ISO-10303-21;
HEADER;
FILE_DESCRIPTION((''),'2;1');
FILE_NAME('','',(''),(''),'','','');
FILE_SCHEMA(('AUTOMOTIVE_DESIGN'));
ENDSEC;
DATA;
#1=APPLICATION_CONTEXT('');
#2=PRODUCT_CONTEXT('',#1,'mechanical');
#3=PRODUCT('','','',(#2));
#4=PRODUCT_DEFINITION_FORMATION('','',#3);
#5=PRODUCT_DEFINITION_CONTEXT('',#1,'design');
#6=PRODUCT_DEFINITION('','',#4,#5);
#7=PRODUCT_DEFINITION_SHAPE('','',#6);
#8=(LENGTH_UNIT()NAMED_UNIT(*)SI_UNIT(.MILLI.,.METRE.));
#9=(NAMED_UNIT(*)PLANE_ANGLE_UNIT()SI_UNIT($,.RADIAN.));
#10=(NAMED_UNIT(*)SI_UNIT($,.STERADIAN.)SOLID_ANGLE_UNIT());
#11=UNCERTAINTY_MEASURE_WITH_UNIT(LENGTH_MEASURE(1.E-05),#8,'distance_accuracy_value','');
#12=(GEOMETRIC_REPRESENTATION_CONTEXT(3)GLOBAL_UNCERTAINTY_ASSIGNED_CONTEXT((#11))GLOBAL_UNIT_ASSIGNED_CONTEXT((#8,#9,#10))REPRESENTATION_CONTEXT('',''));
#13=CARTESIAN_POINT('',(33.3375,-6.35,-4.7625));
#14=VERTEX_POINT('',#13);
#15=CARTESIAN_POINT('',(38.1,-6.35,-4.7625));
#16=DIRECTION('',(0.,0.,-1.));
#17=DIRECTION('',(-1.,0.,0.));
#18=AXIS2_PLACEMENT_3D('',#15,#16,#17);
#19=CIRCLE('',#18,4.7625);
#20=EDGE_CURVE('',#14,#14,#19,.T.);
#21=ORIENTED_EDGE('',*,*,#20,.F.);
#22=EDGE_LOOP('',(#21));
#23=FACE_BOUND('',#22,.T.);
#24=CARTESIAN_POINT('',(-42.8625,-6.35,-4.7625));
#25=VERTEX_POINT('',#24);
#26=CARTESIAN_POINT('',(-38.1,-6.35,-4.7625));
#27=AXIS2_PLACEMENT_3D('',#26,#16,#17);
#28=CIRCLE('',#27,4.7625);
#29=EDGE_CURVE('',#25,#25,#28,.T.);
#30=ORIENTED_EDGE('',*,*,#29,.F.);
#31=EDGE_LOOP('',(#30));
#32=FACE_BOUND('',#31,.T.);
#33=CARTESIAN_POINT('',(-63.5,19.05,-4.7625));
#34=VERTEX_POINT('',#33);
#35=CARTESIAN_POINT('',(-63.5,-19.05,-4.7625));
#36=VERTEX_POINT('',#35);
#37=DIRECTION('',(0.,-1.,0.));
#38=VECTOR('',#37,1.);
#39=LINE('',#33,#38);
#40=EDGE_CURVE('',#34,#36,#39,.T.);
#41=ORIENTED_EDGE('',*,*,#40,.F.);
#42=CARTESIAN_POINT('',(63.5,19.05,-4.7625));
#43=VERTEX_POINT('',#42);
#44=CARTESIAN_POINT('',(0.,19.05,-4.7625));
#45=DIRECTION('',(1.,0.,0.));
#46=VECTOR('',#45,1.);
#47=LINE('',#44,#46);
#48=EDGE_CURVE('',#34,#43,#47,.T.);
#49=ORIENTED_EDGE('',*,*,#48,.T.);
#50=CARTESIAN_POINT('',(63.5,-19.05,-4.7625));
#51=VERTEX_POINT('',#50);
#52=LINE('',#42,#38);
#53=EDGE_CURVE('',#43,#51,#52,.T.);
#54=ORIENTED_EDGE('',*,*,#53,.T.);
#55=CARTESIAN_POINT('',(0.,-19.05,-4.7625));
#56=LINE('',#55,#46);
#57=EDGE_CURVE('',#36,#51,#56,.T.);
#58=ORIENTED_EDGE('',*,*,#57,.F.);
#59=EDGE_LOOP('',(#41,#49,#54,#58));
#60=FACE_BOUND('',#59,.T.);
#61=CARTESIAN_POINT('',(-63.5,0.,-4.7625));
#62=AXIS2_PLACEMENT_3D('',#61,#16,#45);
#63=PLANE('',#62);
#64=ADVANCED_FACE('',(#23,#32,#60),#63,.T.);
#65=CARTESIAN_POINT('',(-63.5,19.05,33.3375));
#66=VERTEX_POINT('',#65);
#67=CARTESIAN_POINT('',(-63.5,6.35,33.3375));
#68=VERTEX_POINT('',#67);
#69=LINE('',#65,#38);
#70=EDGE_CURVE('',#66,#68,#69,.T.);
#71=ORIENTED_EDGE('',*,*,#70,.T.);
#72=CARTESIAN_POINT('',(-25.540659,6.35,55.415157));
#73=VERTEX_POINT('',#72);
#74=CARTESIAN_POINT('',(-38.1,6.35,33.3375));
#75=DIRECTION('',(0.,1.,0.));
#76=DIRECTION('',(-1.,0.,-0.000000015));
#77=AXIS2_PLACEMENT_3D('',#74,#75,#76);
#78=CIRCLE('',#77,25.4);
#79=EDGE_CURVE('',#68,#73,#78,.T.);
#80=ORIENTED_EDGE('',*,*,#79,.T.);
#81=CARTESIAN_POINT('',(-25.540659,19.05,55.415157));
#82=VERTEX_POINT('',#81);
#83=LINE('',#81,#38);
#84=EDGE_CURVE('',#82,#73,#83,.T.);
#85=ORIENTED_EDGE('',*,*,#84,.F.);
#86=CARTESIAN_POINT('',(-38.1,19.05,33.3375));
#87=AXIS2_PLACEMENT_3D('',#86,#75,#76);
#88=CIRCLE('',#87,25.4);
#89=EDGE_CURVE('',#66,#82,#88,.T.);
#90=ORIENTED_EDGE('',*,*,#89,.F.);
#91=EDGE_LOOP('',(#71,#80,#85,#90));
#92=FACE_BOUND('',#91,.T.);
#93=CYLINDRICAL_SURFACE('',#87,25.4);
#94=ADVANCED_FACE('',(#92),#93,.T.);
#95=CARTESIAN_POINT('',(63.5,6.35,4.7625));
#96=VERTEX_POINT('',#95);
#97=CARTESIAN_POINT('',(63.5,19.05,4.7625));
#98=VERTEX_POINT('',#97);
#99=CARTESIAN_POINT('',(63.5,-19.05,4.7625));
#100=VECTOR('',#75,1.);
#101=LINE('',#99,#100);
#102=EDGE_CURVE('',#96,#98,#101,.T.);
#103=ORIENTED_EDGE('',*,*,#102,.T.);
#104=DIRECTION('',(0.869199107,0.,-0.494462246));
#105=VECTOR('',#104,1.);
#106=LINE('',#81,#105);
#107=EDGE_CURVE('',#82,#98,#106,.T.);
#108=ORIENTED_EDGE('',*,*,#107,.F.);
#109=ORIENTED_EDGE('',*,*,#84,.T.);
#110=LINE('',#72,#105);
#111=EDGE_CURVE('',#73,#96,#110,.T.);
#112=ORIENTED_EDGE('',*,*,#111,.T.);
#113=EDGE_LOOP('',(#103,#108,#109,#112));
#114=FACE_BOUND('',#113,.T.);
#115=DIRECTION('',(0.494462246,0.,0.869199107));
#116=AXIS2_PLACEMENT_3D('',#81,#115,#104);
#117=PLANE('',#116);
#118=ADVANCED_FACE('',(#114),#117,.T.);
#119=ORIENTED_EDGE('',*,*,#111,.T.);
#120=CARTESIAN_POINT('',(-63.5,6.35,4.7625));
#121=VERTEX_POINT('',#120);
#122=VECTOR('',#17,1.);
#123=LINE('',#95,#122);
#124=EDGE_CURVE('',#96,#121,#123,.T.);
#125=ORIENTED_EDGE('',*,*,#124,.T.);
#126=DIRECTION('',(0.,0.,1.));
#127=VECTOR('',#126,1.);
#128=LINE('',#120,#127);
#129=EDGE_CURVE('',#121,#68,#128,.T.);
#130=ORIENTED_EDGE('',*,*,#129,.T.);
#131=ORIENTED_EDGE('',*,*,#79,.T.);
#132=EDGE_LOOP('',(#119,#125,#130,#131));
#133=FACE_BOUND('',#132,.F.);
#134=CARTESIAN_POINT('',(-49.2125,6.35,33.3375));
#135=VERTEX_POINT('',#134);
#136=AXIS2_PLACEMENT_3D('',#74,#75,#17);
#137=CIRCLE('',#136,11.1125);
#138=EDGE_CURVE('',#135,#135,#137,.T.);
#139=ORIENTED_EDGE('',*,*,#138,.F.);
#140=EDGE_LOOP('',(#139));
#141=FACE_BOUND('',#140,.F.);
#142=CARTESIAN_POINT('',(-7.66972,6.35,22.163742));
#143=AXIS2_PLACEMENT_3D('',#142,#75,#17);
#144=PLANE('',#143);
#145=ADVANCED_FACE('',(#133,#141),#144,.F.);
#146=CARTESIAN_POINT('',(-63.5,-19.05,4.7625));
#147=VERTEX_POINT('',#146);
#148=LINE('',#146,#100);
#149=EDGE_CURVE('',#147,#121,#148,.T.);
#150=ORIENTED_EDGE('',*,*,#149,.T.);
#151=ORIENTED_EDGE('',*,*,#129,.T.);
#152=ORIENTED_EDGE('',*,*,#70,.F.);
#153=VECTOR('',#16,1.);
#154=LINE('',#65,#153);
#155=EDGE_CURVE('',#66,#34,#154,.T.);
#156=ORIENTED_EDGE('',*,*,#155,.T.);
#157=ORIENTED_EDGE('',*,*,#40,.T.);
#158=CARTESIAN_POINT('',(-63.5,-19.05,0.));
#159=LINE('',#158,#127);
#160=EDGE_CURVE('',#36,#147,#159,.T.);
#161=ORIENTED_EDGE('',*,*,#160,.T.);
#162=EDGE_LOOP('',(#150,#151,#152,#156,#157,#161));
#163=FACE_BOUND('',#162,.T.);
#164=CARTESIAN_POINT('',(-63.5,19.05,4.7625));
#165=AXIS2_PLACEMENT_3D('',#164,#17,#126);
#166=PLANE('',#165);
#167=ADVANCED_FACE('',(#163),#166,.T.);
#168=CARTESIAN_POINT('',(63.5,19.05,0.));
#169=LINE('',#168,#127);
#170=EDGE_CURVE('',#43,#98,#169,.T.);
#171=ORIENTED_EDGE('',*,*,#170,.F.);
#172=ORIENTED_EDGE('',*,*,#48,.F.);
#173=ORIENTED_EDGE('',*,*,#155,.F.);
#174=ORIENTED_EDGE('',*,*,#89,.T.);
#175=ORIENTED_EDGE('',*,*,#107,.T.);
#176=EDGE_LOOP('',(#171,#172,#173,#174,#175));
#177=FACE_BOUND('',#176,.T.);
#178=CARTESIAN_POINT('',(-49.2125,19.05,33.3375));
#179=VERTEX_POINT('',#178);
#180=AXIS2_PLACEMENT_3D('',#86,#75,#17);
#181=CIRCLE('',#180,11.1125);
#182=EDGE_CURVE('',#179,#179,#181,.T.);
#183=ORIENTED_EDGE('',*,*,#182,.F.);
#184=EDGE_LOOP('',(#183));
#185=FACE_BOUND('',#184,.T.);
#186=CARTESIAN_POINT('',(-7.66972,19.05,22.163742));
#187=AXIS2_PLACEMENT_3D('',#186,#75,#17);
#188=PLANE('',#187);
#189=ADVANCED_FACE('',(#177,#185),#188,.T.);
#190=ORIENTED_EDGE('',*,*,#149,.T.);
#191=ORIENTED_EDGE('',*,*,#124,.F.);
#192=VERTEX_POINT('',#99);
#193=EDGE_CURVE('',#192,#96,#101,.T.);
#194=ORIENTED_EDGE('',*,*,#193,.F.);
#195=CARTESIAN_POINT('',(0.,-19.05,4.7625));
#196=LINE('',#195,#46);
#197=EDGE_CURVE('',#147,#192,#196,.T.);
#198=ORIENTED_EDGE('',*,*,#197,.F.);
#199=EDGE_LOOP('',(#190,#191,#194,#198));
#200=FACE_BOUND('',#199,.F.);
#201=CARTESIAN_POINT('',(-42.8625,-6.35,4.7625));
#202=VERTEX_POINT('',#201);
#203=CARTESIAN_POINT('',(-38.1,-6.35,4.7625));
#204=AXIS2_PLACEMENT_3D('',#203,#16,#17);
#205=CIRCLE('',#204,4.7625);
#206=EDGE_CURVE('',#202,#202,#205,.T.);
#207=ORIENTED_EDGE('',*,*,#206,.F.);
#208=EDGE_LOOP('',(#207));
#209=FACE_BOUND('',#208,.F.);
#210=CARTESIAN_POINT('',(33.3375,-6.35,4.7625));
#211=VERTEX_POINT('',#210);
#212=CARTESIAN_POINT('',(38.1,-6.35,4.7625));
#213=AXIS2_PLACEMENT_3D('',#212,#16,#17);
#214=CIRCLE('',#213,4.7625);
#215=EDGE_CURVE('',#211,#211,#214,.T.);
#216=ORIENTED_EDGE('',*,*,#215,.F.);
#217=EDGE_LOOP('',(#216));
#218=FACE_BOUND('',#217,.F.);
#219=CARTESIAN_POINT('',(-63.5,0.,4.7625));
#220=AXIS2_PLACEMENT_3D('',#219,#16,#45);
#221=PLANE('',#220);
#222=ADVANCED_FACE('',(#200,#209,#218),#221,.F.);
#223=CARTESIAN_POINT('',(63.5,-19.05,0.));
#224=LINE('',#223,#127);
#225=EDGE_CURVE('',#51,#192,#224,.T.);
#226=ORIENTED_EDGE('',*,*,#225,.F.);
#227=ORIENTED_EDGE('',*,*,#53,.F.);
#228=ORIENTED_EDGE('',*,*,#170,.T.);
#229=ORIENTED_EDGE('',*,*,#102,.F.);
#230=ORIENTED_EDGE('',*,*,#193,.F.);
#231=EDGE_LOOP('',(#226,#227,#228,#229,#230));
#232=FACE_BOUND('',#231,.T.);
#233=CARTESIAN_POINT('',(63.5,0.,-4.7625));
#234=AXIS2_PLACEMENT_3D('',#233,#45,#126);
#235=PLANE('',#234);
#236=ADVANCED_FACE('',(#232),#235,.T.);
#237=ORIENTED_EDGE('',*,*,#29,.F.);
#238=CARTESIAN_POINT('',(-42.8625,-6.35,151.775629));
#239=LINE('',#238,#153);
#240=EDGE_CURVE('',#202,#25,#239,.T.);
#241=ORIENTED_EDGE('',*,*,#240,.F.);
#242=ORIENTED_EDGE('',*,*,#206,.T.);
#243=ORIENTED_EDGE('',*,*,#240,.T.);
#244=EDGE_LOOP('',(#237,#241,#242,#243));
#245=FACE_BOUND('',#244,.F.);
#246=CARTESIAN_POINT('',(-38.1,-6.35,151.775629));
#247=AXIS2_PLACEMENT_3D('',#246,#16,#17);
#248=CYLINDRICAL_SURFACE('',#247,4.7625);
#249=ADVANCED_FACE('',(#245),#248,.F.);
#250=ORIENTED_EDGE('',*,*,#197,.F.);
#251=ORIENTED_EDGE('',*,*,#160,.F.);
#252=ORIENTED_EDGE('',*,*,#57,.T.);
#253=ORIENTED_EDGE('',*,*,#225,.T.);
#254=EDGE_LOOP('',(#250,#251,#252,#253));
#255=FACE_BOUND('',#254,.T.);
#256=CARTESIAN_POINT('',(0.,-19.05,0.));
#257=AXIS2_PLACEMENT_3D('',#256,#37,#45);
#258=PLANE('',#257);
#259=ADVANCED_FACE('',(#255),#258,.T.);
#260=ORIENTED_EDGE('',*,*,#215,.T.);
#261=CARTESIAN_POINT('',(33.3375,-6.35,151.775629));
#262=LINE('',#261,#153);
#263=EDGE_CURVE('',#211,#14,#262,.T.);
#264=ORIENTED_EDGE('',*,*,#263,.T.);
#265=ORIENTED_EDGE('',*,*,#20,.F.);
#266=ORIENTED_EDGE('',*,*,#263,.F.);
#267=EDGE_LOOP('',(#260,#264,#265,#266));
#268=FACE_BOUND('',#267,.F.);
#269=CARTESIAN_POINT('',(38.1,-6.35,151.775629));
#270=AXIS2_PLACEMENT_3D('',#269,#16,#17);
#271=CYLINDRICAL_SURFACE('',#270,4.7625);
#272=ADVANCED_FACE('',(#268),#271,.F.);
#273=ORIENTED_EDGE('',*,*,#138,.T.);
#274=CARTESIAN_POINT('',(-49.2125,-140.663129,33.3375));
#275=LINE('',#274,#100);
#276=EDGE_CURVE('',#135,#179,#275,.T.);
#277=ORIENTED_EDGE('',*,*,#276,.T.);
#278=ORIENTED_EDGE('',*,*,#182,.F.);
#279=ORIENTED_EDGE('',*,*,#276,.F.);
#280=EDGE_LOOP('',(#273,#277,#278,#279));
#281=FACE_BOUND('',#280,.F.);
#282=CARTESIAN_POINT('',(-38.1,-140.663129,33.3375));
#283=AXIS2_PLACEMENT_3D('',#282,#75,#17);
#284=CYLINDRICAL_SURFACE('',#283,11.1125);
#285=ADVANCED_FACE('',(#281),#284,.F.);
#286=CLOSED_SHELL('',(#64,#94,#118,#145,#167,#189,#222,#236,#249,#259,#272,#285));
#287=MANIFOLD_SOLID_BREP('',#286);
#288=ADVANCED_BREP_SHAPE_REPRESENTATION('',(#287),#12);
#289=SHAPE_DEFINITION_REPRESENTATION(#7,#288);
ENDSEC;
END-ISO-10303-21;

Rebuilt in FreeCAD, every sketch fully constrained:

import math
import FreeCAD as App
import Part
import Sketcher

V = App.Vector
Q = App.Units.Quantity


def add_polygon(sketch, points):
    """Adds a closed chain of lines whose ends are joined by coincident constraints."""
    first, n = sketch.GeometryCount, len(points)
    for a, b in zip(points, points[1:] + points[:1]):
        sketch.addGeometry(Part.LineSegment(App.Vector(*a, 0), App.Vector(*b, 0)), False)
    for i in range(n):
        sketch.addConstraint(Sketcher.Constraint("Coincident", first + i, 2, first + (i + 1) % n, 1))

doc = App.newDocument("Part")
body = doc.addObject("PartDesign::Body", "Body")

sketch1 = body.newObject("Sketcher::SketchObject", "Sketch")
sketch1.AttachmentSupport = (doc.getObject("XZ_Plane"), [""])
sketch1.MapMode = "FlatFace"
add_polygon(sketch1, [(-64, 5), (-64, -5), (64, -5), (64, 5)])
sketch1.addConstraint(Sketcher.Constraint("Vertical", 0))
sketch1.addConstraint(Sketcher.Constraint("Horizontal", 1))
sketch1.addConstraint(Sketcher.Constraint("Vertical", 2))
sketch1.addConstraint(Sketcher.Constraint("Horizontal", 3))
sketch1.addConstraint(Sketcher.Constraint("Symmetric", 0, 2, 2, 2, -1, 1))
sketch1.addConstraint(Sketcher.Constraint("DistanceX", 1, 1, 1, 2, Q("5 in")))
sketch1.addConstraint(Sketcher.Constraint("DistanceY", 0, 2, 0, 1, Q("0.375 in")))
pad1 = body.newObject("PartDesign::Pad", "Pad")
pad1.Profile = sketch1
pad1.Length = Q("1.5 in")
pad1.Midplane = True

sketch2 = body.newObject("Sketcher::SketchObject", "Sketch001")
sketch2.AttachmentSupport = (doc.getObject("XZ_Plane"), [""])
sketch2.MapMode = "FlatFace"
sketch2.AttachmentOffset = App.Placement(V(0, 0, -0.75 * 25.4), App.Rotation())
sketch2.addGeometry(Part.LineSegment(V(-64, 5, 0), V(-64, 33, 0)), False)
sketch2.addGeometry(Part.ArcOfCircle(Part.Circle(V(-38, 33, 0), V(0, 0, 1), 25), math.radians(60), math.radians(180)), False)
sketch2.addGeometry(Part.LineSegment(V(-26, 55, 0), V(64, 5, 0)), False)
sketch2.addGeometry(Part.LineSegment(V(64, 5, 0), V(-64, 5, 0)), False)
sketch2.addConstraint(Sketcher.Constraint("Tangent", 0, 2, 1, 2))
sketch2.addConstraint(Sketcher.Constraint("Tangent", 1, 1, 2, 1))
sketch2.addConstraint(Sketcher.Constraint("Coincident", 2, 2, 3, 1))
sketch2.addConstraint(Sketcher.Constraint("Coincident", 3, 2, 0, 1))
sketch2.addConstraint(Sketcher.Constraint("Vertical", 0))
sketch2.addConstraint(Sketcher.Constraint("Horizontal", 3))
sketch2.addConstraint(Sketcher.Constraint("Radius", 1, Q("1 in")))
sketch2.addConstraint(Sketcher.Constraint("DistanceX", 3, 2, 3, 1, Q("5 in")))
sketch2.addConstraint(Sketcher.Constraint("DistanceX", 1, 3, -1, 1, Q("1.5 in")))
sketch2.addConstraint(Sketcher.Constraint("DistanceY", 0, 1, 0, 2, Q("1.125 in")))
sketch2.addConstraint(Sketcher.Constraint("DistanceY", -1, 1, 1, 3, Q("1.3125 in")))
pad2 = body.newObject("PartDesign::Pad", "Pad001")
pad2.Profile = sketch2
pad2.Length = Q("0.5 in")

sketch3 = body.newObject("Sketcher::SketchObject", "Sketch002")
sketch3.AttachmentSupport = (doc.getObject("XZ_Plane"), [""])
sketch3.MapMode = "FlatFace"
sketch3.AttachmentOffset = App.Placement(V(0, 0, -0.25 * 25.4), App.Rotation())
sketch3.addGeometry(Part.Circle(V(-38, 33, 0), V(0, 0, 1), 11), False)
sketch3.addConstraint(Sketcher.Constraint("Diameter", 0, Q("0.875 in")))
sketch3.addConstraint(Sketcher.Constraint("DistanceX", 0, 3, -1, 1, Q("1.5 in")))
sketch3.addConstraint(Sketcher.Constraint("DistanceY", -1, 1, 0, 3, Q("1.3125 in")))
doc.recompute()
hole = body.newObject("PartDesign::Hole", "Hole")
hole.Profile = sketch3
hole.ThreadType = "None"
hole.Diameter = Q("0.875 in")
hole.DepthType = "ThroughAll"

sketch4 = body.newObject("Sketcher::SketchObject", "Sketch003")
sketch4.AttachmentSupport = (doc.getObject("XY_Plane"), [""])
sketch4.MapMode = "FlatFace"
sketch4.AttachmentOffset = App.Placement(V(0, 0, 0.1875 * 25.4), App.Rotation())
sketch4.addGeometry(Part.Circle(V(-38.1, -6.3, 0), V(0, 0, 1), 4.8), False)
sketch4.addGeometry(Part.Circle(V(38.1, -6.3, 0), V(0, 0, 1), 4.8), False)
sketch4.addConstraint(Sketcher.Constraint("Equal", 0, 1))
sketch4.addConstraint(Sketcher.Constraint("Symmetric", 0, 3, 1, 3, -2))
sketch4.addConstraint(Sketcher.Constraint("Diameter", 0, Q("0.375 in")))
sketch4.addConstraint(Sketcher.Constraint("DistanceX", 0, 3, 1, 3, Q("3 in")))
sketch4.addConstraint(Sketcher.Constraint("DistanceY", 0, 3, -1, 1, Q("0.25 in")))
doc.recompute()
hole2 = body.newObject("PartDesign::Hole", "Hole001")
hole2.Profile = sketch4
hole2.ThreadType = "None"
hole2.Diameter = Q("0.375 in")
hole2.DepthType = "ThroughAll"

doc.recompute()
